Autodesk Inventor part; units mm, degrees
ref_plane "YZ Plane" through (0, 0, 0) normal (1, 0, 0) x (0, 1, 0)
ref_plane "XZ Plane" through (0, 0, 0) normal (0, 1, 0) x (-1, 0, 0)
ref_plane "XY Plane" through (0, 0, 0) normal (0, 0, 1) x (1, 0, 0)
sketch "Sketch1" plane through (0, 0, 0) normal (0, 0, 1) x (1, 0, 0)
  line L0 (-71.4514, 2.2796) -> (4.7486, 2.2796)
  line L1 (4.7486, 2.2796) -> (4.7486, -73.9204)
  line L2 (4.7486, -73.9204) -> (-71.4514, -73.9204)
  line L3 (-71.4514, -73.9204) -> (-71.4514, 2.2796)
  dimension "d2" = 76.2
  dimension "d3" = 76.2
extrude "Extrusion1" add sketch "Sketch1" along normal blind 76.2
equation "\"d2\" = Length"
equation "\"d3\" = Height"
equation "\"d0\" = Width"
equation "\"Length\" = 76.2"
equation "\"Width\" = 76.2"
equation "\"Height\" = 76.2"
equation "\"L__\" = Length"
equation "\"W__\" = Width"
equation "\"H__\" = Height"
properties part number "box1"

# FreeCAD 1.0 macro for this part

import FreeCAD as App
import Part
import Sketcher

V = App.Vector
Q = App.Units.Quantity


def add_polygon(sketch, points):
    """Adds a closed chain of lines whose ends are joined by coincident constraints."""
    first, n = sketch.GeometryCount, len(points)
    for a, b in zip(points, points[1:] + points[:1]):
        sketch.addGeometry(Part.LineSegment(App.Vector(*a, 0), App.Vector(*b, 0)), False)
    for i in range(n):
        sketch.addConstraint(Sketcher.Constraint("Coincident", first + i, 2, first + (i + 1) % n, 1))

doc = App.newDocument("Part")
body = doc.addObject("PartDesign::Body", "Body")

# Sketch on XY plane
sketch1 = body.newObject("Sketcher::SketchObject", "Sketch")
sketch1.AttachmentSupport = (doc.getObject("XY_Plane"), [""])
sketch1.MapMode = "FlatFace"
add_polygon(sketch1, [(5, 2), (-71, 2), (-71, -74), (5, -74)])  # lines 0-3
sketch1.addConstraint([
    Sketcher.Constraint("Horizontal", 0),
    Sketcher.Constraint("Vertical", 1),
    Sketcher.Constraint("Horizontal", 2),
    Sketcher.Constraint("Vertical", 3),
    Sketcher.Constraint("Equal", 2, 1),
    Sketcher.Constraint("DistanceX", 0, 2, 0, 1, Q("3 in")),
    Sketcher.Constraint("DistanceX", 0, 2, -1, 1, Q("71.4514 mm")),
    Sketcher.Constraint("DistanceY", -1, 1, 0, 2, Q("2.2796 mm")),
])
pad1 = body.newObject("PartDesign::Pad", "Pad")
pad1.Profile = sketch1
pad1.Length = Q("3 in")

doc.recompute()
